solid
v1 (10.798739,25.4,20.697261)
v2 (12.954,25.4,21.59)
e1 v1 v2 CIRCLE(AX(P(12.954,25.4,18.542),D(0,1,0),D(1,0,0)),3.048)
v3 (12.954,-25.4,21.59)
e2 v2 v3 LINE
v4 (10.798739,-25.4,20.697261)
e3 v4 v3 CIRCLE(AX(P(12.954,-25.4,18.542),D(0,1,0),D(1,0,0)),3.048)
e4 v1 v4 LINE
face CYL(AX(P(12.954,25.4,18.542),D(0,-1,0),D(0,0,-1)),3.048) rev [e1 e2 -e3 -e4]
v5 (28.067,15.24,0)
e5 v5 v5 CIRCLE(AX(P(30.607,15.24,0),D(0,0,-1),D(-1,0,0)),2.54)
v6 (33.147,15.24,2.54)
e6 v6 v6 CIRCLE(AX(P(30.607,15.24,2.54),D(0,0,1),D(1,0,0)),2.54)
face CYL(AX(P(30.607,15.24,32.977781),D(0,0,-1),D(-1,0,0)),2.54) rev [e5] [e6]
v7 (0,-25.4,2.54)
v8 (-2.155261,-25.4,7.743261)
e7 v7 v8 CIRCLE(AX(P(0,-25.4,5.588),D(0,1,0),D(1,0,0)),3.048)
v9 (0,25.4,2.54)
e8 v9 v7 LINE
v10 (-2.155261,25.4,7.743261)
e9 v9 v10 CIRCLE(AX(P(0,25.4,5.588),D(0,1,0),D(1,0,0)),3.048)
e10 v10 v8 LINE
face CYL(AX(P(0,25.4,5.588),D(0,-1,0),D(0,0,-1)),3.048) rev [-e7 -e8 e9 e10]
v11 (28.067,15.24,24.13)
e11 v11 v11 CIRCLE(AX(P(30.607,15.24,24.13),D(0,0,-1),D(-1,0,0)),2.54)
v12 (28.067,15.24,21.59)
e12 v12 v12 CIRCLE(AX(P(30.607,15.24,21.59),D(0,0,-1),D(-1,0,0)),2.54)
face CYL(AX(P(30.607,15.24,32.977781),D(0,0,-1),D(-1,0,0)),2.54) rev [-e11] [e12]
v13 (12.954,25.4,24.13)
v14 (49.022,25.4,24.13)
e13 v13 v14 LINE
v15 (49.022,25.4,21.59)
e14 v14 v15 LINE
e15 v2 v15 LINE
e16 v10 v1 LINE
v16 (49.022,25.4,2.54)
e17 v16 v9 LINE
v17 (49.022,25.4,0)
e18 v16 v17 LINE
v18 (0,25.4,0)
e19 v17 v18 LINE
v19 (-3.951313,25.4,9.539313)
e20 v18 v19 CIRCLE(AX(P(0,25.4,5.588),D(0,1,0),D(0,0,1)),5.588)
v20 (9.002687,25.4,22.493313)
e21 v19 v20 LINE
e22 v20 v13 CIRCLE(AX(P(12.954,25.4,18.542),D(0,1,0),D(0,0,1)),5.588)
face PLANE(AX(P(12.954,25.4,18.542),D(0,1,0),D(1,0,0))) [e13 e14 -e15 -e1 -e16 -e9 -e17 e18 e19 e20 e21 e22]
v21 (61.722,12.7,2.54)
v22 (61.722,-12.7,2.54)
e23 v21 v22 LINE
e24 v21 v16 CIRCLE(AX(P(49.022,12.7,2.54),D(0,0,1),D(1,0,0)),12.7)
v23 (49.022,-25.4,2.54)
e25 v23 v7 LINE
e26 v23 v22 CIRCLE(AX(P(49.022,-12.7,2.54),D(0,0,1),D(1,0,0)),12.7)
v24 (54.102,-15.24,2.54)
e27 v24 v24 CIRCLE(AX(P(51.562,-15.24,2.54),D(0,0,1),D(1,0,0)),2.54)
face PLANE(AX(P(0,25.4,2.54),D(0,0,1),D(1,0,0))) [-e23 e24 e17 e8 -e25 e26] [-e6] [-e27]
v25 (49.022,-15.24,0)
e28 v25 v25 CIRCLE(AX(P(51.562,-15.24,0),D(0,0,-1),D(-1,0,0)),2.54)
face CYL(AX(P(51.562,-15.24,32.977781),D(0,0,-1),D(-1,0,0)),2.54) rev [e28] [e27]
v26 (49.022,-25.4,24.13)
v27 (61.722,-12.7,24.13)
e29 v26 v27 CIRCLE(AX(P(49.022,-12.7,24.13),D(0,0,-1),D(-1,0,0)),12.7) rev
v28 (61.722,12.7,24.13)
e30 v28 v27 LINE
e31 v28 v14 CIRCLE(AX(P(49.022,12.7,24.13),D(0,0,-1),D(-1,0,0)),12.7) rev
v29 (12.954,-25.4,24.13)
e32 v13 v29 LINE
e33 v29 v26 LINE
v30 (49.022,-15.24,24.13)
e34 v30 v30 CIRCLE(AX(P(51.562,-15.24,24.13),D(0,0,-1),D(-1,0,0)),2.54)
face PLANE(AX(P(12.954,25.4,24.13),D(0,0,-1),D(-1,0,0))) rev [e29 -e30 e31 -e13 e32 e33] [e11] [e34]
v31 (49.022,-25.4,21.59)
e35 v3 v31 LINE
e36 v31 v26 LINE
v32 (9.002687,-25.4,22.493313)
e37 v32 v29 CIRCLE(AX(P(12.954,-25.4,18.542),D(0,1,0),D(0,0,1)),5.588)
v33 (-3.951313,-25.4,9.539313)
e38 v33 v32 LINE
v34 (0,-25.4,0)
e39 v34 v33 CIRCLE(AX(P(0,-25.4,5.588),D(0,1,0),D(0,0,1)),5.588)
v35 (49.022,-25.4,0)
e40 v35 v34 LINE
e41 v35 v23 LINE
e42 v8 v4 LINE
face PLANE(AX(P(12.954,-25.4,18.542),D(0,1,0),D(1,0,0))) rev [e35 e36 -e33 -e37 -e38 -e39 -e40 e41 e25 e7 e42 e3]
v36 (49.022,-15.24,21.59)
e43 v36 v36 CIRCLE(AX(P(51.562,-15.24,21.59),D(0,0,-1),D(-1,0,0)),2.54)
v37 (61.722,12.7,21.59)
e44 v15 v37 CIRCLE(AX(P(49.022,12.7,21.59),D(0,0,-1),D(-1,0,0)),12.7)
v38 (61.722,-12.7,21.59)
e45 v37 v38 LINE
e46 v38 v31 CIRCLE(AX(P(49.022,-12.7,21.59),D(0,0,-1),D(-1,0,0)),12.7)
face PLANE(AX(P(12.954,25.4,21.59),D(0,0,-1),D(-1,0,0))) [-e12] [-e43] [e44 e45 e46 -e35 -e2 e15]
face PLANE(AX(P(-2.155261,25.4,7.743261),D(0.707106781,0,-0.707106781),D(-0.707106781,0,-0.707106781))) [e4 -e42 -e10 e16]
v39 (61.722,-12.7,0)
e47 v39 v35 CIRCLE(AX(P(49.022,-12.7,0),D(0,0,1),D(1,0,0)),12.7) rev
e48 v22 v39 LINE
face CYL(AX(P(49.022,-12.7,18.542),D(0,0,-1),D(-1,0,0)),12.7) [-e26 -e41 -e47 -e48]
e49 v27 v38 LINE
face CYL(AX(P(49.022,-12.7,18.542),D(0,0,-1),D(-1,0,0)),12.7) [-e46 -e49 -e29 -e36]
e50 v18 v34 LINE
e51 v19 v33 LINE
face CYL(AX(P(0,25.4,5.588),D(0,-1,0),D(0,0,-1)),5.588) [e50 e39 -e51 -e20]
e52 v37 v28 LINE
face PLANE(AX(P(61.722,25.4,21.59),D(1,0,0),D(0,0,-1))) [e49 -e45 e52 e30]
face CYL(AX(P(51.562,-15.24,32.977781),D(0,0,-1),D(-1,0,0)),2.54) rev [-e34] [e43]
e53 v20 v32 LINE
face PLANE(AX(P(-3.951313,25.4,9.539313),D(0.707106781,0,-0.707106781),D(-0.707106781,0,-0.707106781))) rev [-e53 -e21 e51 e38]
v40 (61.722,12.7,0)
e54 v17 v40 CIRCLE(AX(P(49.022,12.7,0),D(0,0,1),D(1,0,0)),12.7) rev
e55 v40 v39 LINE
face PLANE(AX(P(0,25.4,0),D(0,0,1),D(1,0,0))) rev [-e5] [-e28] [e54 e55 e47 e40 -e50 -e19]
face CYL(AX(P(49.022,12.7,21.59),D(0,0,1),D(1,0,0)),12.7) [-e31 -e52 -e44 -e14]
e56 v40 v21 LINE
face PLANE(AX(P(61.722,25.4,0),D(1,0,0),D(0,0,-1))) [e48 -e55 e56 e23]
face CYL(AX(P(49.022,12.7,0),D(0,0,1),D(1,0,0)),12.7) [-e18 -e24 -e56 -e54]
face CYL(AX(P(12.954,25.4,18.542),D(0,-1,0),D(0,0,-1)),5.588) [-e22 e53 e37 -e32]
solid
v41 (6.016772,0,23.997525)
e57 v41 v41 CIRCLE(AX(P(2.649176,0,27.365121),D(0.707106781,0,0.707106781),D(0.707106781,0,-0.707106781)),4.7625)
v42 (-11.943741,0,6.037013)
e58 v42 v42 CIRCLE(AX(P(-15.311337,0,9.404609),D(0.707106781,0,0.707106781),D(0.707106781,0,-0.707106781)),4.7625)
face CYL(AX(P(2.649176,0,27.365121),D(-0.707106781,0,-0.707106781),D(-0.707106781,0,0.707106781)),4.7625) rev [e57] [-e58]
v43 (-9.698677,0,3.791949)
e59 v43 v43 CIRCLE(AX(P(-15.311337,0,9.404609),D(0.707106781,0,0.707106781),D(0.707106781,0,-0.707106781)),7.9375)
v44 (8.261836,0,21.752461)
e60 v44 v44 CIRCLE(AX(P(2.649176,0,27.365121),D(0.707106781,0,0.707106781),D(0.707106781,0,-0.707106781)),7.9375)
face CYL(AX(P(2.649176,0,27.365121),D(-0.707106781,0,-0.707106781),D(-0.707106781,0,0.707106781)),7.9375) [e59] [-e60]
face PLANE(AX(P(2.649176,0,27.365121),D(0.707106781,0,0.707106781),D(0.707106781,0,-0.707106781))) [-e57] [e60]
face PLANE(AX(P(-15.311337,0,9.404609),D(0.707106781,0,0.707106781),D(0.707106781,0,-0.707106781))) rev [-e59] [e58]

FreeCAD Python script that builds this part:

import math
import FreeCAD as App
import Part
import Sketcher
from FreeCAD import Vector
Q = App.Units.Quantity


def edges_at(feature, points):
    """Names of the edges that pass closest to the given points."""
    edges = feature.Shape.Edges
    near = lambda p: min(range(len(edges)), key=lambda i: edges[i].distToShape(Part.Vertex(*p))[0])
    return sorted({f"Edge{near(p) + 1}" for p in points})

doc = App.newDocument("Part")
body = doc.addObject("PartDesign::Body", "Body")

# Sketch on XZ plane
sketch1 = doc.addObject("Sketcher::SketchObject", "Sketch")
body.addObject(sketch1)
sketch1.AttachmentSupport = (doc.XZ_Plane, [""])
sketch1.MapMode = "FlatFace"
sketch1.addGeometry([
    Part.LineSegment(Vector(13, 24.1, 0), Vector(61.7, 24.1, 0)),  # 0
    Part.LineSegment(Vector(61.7, 24.1, 0), Vector(61.7, 21.6, 0)),  # 1
    Part.LineSegment(Vector(61.7, 21.6, 0), Vector(13, 21.6, 0)),  # 2
    Part.ArcOfCircle(Part.Circle(Vector(13, 18.5, 0), Vector(0, 0, 1), 3), math.radians(90), math.radians(135)),  # 3
    Part.LineSegment(Vector(10.8, 20.7, 0), Vector(-2.2, 7.7, 0)),  # 4
    Part.ArcOfCircle(Part.Circle(Vector(0, 5.6, 0), Vector(0, 0, 1), 3), math.radians(135), math.radians(270)),  # 5
    Part.LineSegment(Vector(0, 2.5, 0), Vector(61.7, 2.5, 0)),  # 6
    Part.LineSegment(Vector(61.7, 2.5, 0), Vector(61.7, 0, 0)),  # 7
    Part.LineSegment(Vector(61.7, 0, 0), Vector(0, 0, 0)),  # 8
    Part.ArcOfCircle(Part.Circle(Vector(0, 5.6, 0), Vector(0, 0, 1), 5.6), math.radians(135), math.radians(270)),  # 9
    Part.LineSegment(Vector(-4, 9.5, 0), Vector(9, 22.5, 0)),  # 10
    Part.ArcOfCircle(Part.Circle(Vector(13, 18.5, 0), Vector(0, 0, 1), 5.6), math.radians(90), math.radians(135)),  # 11
], False)
sketch1.addConstraint([
    Sketcher.Constraint("Coincident", 0, 2, 1, 1),
    Sketcher.Constraint("Coincident", 1, 2, 2, 1),
    Sketcher.Constraint("Tangent", 2, 2, 3, 1),
    Sketcher.Constraint("Tangent", 3, 2, 4, 1),
    Sketcher.Constraint("Tangent", 4, 2, 5, 1),
    Sketcher.Constraint("Tangent", 5, 2, 6, 1),
    Sketcher.Constraint("Coincident", 6, 2, 7, 1),
    Sketcher.Constraint("Coincident", 7, 2, 8, 1),
    Sketcher.Constraint("Tangent", 8, 2, 9, 2),
    Sketcher.Constraint("Tangent", 9, 1, 10, 1),
    Sketcher.Constraint("Tangent", 10, 2, 11, 2),
    Sketcher.Constraint("Tangent", 11, 1, 0, 1),
    Sketcher.Constraint("Horizontal", 0),
    Sketcher.Constraint("Vertical", 1),
    Sketcher.Constraint("Horizontal", 2),
    Sketcher.Constraint("Horizontal", 6),
    Sketcher.Constraint("Vertical", 7),
    Sketcher.Constraint("Horizontal", 8),
    Sketcher.Constraint("Coincident", 8, 2, -1, 1),
    Sketcher.Constraint("Coincident", 9, 3, 5, 3),
    Sketcher.Constraint("Coincident", 11, 3, 3, 3),
    Sketcher.Constraint("Equal", 3, 5),
    Sketcher.Constraint("Equal", 9, 11),
    Sketcher.Constraint("Vertical", 1, 2, 6, 2),
    Sketcher.Constraint("Radius", 3, Q("0.12 in")),
    Sketcher.Constraint("Radius", 9, Q("0.22 in")),
    Sketcher.Constraint("Angle", 4, Q("-135 deg")),
    Sketcher.Constraint("DistanceX", 0, 1, 0, 2, Q("1.92 in")),
    Sketcher.Constraint("DistanceX", 6, 1, 6, 2, Q("2.43 in")),
])
pad1 = doc.addObject("PartDesign::Pad", "Pad")
body.addObject(pad1)
pad1.Profile = sketch1
pad1.Length = Q("2 in")
pad1.Midplane = True
doc.recompute()

fillet = doc.addObject("PartDesign::Fillet", "Fillet")
body.addObject(fillet)
fillet.Base = (pad1, edges_at(pad1, [
    (61.722, -25.4, 1.27),
    (61.722, -25.4, 22.86),
    (61.722, 25.4, 1.27),
    (61.722, 25.4, 22.86),
]))
fillet.Radius = Q("0.5 in")

# Sketch on XY plane
sketch2 = doc.addObject("Sketcher::SketchObject", "Sketch001")
body.addObject(sketch2)
sketch2.AttachmentSupport = (doc.XY_Plane, [""])
sketch2.MapMode = "FlatFace"
sketch2.addGeometry([
    Part.Circle(Vector(51.6, -15.2, 0), Vector(0, 0, 1), 2.5),
    Part.Circle(Vector(30.6, 15.2, 0), Vector(0, 0, 1), 2.5),
], False)
sketch2.addConstraint([
    Sketcher.Constraint("Equal", 0, 1),
    Sketcher.Constraint("Diameter", 0, Q("0.2 in")),
    Sketcher.Constraint("DistanceY", 0, 3, -1, 1, Q("0.6 in")),
    Sketcher.Constraint("DistanceY", -1, 1, 1, 3, Q("0.6 in")),
    Sketcher.Constraint("DistanceX", -1, 1, 0, 3, Q("2.03 in")),
    Sketcher.Constraint("DistanceX", -1, 1, 1, 3, Q("1.205 in")),
])
pocket1 = doc.addObject("PartDesign::Pocket", "Pocket")
body.addObject(pocket1)
pocket1.Profile = sketch2
pocket1.Type = "ThroughAll"
pocket1.Reversed = True
body2 = doc.addObject("PartDesign::Body", "Body001")

# Sketch on an angled plane
sketch3 = doc.addObject("Sketcher::SketchObject", "Sketch002")
body2.addObject(sketch3)
sketch3.Placement = App.Placement(Vector(-9.698677, 25.4, 3.791949), App.Rotation(Vector(0.707106781, 0, -0.707106781), Vector(0, 0.999999999, 0), Vector(0.707106781, 0, 0.707106781), "ZXY"))
sketch3.addGeometry([
    Part.Circle(Vector(-7.9, -25.4, 0), Vector(0, 0, 1), 7.9),
    Part.Circle(Vector(-7.9, -25.4, 0), Vector(0, 0, 1), 4.8),
], False)
sketch3.addConstraint([
    Sketcher.Constraint("Coincident", 1, 3, 0, 3),
    Sketcher.Constraint("Diameter", 0, Q("0.625 in")),
    Sketcher.Constraint("Diameter", 1, Q("0.375 in")),
    Sketcher.Constraint("DistanceY", 0, 3, -1, 1, Q("1 in")),
    Sketcher.Constraint("DistanceX", 0, 3, -1, 1, Q("0.3125 in")),
])
pad2 = doc.addObject("PartDesign::Pad", "Pad001")
body2.addObject(pad2)
pad2.Profile = sketch3
pad2.Length = Q("1 in")

doc.recompute()
